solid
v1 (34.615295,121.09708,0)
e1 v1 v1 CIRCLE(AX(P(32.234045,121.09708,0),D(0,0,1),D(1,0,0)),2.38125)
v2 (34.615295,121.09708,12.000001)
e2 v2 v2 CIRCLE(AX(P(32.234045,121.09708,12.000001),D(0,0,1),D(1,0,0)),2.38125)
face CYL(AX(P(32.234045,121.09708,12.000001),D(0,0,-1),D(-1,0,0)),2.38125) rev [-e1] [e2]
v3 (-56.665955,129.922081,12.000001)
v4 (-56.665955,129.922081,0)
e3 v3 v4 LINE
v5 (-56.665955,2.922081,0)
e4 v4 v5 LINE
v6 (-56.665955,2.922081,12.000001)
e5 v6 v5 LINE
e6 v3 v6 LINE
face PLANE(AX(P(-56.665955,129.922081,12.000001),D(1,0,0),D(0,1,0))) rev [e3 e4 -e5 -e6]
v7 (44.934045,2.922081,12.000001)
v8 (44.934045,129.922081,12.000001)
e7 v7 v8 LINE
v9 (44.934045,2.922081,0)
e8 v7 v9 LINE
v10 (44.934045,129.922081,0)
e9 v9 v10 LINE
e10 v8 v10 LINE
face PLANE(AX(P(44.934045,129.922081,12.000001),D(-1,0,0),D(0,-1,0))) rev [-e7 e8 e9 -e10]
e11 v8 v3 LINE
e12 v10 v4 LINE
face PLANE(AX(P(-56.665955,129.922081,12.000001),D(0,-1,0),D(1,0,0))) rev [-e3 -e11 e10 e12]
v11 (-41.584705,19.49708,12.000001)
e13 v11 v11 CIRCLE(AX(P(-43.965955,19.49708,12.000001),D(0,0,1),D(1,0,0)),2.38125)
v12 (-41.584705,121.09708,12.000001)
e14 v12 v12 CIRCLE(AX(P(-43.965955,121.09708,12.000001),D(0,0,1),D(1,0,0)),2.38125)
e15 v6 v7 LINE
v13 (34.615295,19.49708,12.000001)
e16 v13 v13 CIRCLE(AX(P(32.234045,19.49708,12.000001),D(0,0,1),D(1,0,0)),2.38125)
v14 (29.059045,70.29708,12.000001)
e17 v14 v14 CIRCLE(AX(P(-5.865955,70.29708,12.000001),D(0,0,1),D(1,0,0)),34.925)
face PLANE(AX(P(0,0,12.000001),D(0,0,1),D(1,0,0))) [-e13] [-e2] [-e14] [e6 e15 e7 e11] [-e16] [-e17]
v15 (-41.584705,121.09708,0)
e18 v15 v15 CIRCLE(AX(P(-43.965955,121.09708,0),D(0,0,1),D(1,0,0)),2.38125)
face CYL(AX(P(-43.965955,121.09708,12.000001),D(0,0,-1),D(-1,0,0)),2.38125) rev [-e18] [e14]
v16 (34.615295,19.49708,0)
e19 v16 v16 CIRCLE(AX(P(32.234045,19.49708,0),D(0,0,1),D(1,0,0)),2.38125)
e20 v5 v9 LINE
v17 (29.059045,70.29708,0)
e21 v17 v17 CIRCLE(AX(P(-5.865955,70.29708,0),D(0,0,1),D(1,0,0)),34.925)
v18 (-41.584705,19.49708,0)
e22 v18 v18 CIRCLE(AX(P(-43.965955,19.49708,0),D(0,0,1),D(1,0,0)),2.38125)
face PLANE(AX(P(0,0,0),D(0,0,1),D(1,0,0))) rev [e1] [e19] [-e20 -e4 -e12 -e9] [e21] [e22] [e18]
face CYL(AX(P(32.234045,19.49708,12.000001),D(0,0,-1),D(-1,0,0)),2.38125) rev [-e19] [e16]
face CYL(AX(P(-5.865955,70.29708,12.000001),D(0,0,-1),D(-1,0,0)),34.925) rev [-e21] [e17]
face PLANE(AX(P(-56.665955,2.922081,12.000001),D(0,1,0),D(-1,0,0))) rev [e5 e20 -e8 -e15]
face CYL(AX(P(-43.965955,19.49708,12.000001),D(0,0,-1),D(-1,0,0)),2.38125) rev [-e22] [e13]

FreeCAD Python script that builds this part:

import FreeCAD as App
import Part
import Sketcher
from FreeCAD import Vector
Q = App.Units.Quantity


def add_polygon(sketch, points):
    """Adds a closed chain of lines whose ends are joined by coincident constraints."""
    first, n = sketch.GeometryCount, len(points)
    for a, b in zip(points, points[1:] + points[:1]):
        sketch.addGeometry(Part.LineSegment(App.Vector(*a, 0), App.Vector(*b, 0)), False)
    for i in range(n):
        sketch.addConstraint(Sketcher.Constraint("Coincident", first + i, 2, first + (i + 1) % n, 1))

doc = App.newDocument("Part")
body = doc.addObject("PartDesign::Body", "Body")

sketch1 = body.newObject("Sketcher::SketchObject", "Sketch")
sketch1.AttachmentSupport = (doc.getObject("XY_Plane"), [""])
sketch1.MapMode = "FlatFace"
add_polygon(sketch1, [(-56.7, 129.9), (-56.7, 2.9), (44.9, 2.9), (44.9, 129.9)])
sketch1.addGeometry(Part.Circle(Vector(-44, 19.5, 0), Vector(0, 0, 1), 2.4), False)
sketch1.addGeometry(Part.Circle(Vector(32.2, 19.5, 0), Vector(0, 0, 1), 2.4), False)
sketch1.addGeometry(Part.Circle(Vector(-44, 121.1, 0), Vector(0, 0, 1), 2.4), False)
sketch1.addGeometry(Part.Circle(Vector(-5.9, 70.3, 0), Vector(0, 0, 1), 34.9), False)
sketch1.addGeometry(Part.Circle(Vector(32.2, 121.1, 0), Vector(0, 0, 1), 2.4), False)
sketch1.addConstraint([
    Sketcher.Constraint("Vertical", 0),
    Sketcher.Constraint("Horizontal", 1),
    Sketcher.Constraint("Vertical", 2),
    Sketcher.Constraint("Horizontal", 3),
    Sketcher.Constraint("Equal", 4, 5),
    Sketcher.Constraint("Equal", 5, 6),
    Sketcher.Constraint("Equal", 6, 8),
    Sketcher.Constraint("Horizontal", 4, 3, 5, 3),
    Sketcher.Constraint("Horizontal", 6, 3, 8, 3),
    Sketcher.Constraint("Vertical", 4, 3, 6, 3),
    Sketcher.Constraint("Vertical", 5, 3, 8, 3),
    Sketcher.Constraint("Diameter", 7, Q("2.75 in")),
    Sketcher.Constraint("DistanceX", 1, 1, 1, 2, Q("4 in")),
    Sketcher.Constraint("DistanceY", 0, 2, 0, 1, Q("5 in")),
    Sketcher.Constraint("Diameter", 4, Q("0.1875 in")),
    Sketcher.Constraint("DistanceX", 4, 3, 5, 3, Q("3 in")),
    Sketcher.Constraint("DistanceY", 4, 3, 6, 3, Q("4 in")),
    Sketcher.Constraint("DistanceY", 7, 3, 6, 3, Q("2 in")),
    Sketcher.Constraint("DistanceX", 0, 2, 7, 3, Q("2 in")),
    Sketcher.Constraint("DistanceX", 6, 3, 7, 3, Q("1.5 in")),
    Sketcher.Constraint("DistanceY", 0, 2, 4, 3, 16.574999),
    Sketcher.Constraint("DistanceY", -1, 1, 4, 3, 19.49708),
    Sketcher.Constraint("DistanceX", 4, 3, -1, 1, 43.965955),
])
pad1 = body.newObject("PartDesign::Pad", "Pad")
pad1.Profile = sketch1
pad1.Length = 12.000001

doc.recompute()
